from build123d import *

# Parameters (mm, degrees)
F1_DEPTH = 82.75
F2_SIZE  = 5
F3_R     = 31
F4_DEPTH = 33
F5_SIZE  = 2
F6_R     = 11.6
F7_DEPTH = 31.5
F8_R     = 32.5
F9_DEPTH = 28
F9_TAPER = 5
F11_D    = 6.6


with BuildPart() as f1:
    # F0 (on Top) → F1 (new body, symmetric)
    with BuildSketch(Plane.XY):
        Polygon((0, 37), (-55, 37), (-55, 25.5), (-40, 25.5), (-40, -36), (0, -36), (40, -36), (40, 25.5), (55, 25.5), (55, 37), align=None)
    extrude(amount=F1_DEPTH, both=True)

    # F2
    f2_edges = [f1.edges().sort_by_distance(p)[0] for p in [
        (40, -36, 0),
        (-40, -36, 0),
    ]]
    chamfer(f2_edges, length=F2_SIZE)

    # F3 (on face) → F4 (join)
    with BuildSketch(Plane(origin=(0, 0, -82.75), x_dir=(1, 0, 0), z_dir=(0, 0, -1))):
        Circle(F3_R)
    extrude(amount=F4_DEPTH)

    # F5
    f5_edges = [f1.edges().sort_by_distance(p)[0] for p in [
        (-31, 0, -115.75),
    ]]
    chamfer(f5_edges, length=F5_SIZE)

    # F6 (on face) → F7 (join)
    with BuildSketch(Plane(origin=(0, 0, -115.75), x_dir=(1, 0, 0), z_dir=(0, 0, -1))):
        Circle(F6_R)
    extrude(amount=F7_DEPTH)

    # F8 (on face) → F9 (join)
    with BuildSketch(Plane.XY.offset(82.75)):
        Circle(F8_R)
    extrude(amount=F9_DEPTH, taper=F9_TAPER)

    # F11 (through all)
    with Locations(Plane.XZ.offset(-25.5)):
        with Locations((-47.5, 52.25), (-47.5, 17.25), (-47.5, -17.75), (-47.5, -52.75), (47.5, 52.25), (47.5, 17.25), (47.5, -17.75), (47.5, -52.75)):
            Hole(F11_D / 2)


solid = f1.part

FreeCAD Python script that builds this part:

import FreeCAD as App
import Part
import Sketcher


def edges_at(feature, points):
    """Names of the edges that pass closest to the given points."""
    edges = feature.Shape.Edges
    near = lambda p: min(range(len(edges)), key=lambda i: edges[i].distToShape(Part.Vertex(*p))[0])
    return sorted({f"Edge{near(p) + 1}" for p in points})

doc = App.newDocument("Part")
params = doc.addObject("Spreadsheet::Sheet", "Params")
for row, (alias, value) in enumerate([
    ("sketch1_width", "15 mm"),
    ("sketch1_width2", "80 mm"),
    ("sketch1_height", "11.5 mm"),
    ("sketch1_height2", "61.5 mm"),
    ("pad1_length", "165.5 mm"),
    ("chamfer_size", "5 mm"),
    ("sketch2_diameter", "62 mm"),
    ("pad2_length", "33 mm"),
    ("chamfer2_size", "2 mm"),
    ("sketch3_diameter", "23.2 mm"),
    ("pad3_length", "31.5 mm"),
    ("sketch4_diameter", "65 mm"),
    ("pad4_length", "28 mm"),
    ("pad4_taper", "-5 deg"),
    ("sketch5_diameter", "6.6 mm"),
    ("hole_diameter", "6.6 mm"),
], start=1):
    params.set(f"A{row}", alias)
    params.set(f"B{row}", "=" + value)
    params.setAlias(f"B{row}", alias)

body = doc.addObject("PartDesign::Body", "Body")

# Sketch on XY plane
sketch1 = doc.addObject("Sketcher::SketchObject", "Sketch")
body.addObject(sketch1)
sketch1.AttachmentSupport = (doc.XY_Plane, [""])
sketch1.MapMode = "FlatFace"
sketch1.addGeometry([
    Part.LineSegment(App.Vector(-55, 37, 0), App.Vector(-55, 26, 0)),  # 0
    Part.LineSegment(App.Vector(-55, 26, 0), App.Vector(-40, 26, 0)),  # 1
    Part.LineSegment(App.Vector(-40, 26, 0), App.Vector(-40, -36, 0)),  # 2
    Part.LineSegment(App.Vector(-40, -36, 0), App.Vector(40, -36, 0)),  # 3
    Part.LineSegment(App.Vector(40, -36, 0), App.Vector(40, 26, 0)),  # 4
    Part.LineSegment(App.Vector(40, 26, 0), App.Vector(55, 26, 0)),  # 5
    Part.LineSegment(App.Vector(55, 26, 0), App.Vector(55, 37, 0)),  # 6
    Part.LineSegment(App.Vector(55, 37, 0), App.Vector(-55, 37, 0)),  # 7
], False)
sketch1.addConstraint([
    Sketcher.Constraint("Coincident", 0, 2, 1, 1),
    Sketcher.Constraint("Coincident", 1, 2, 2, 1),
    Sketcher.Constraint("Coincident", 2, 2, 3, 1),
    Sketcher.Constraint("Coincident", 3, 2, 4, 1),
    Sketcher.Constraint("Coincident", 4, 2, 5, 1),
    Sketcher.Constraint("Coincident", 5, 2, 6, 1),
    Sketcher.Constraint("Coincident", 6, 2, 7, 1),
    Sketcher.Constraint("Coincident", 7, 2, 0, 1),
    Sketcher.Constraint("Vertical", 0),
    Sketcher.Constraint("Horizontal", 1),
    Sketcher.Constraint("Vertical", 2),
    Sketcher.Constraint("Horizontal", 3),
    Sketcher.Constraint("Vertical", 4),
    Sketcher.Constraint("Horizontal", 5),
    Sketcher.Constraint("Vertical", 6),
    Sketcher.Constraint("Horizontal", 7),
    Sketcher.Constraint("Symmetric", 1, 2, 4, 2, -2),
    Sketcher.Constraint("Equal", 1, 5),
    Sketcher.Constraint("DistanceX", 1, 1, 1, 2, 15.0),
    Sketcher.Constraint("DistanceX", 3, 1, 3, 2, 80.0),
    Sketcher.Constraint("DistanceY", 0, 2, 0, 1, 11.5),
    Sketcher.Constraint("DistanceY", 2, 2, 2, 1, 61.5),
    Sketcher.Constraint("DistanceY", 2, 2, -1, 1, 36.0),
])
sketch1.setExpression("Constraints[18]", "Params.sketch1_width")
sketch1.setExpression("Constraints[19]", "Params.sketch1_width2")
sketch1.setExpression("Constraints[20]", "Params.sketch1_height")
sketch1.setExpression("Constraints[21]", "Params.sketch1_height2")
pad1 = doc.addObject("PartDesign::Pad", "Pad")
body.addObject(pad1)
pad1.Profile = sketch1
pad1.setExpression("Length", "Params.pad1_length")
pad1.Midplane = True
doc.recompute()

chamfer = doc.addObject("PartDesign::Chamfer", "Chamfer")
body.addObject(chamfer)
chamfer.Base = (pad1, edges_at(pad1, [(40, -36, 0), (-40, -36, 0)]))
chamfer.setExpression("Size", "Params.chamfer_size")

# Sketch on XY plane
sketch2 = doc.addObject("Sketcher::SketchObject", "Sketch001")
body.addObject(sketch2)
sketch2.AttachmentSupport = (doc.XY_Plane, [""])
sketch2.MapMode = "FlatFace"
sketch2.AttachmentOffset = App.Placement(App.Vector(0, 0, -82.75), App.Rotation())
sketch2.addGeometry(Part.Circle(App.Vector(0, 0, 0), App.Vector(0, 0, 1), 31), False)
sketch2.addConstraint([
    Sketcher.Constraint("Coincident", 0, 3, -1, 1),
    Sketcher.Constraint("Diameter", 0, 62.0),
])
sketch2.setExpression("Constraints[1]", "Params.sketch2_diameter")
pad2 = doc.addObject("PartDesign::Pad", "Pad001")
body.addObject(pad2)
pad2.Profile = sketch2
pad2.setExpression("Length", "Params.pad2_length")
pad2.Reversed = True
doc.recompute()

chamfer2 = doc.addObject("PartDesign::Chamfer", "Chamfer001")
body.addObject(chamfer2)
chamfer2.Base = (pad2, edges_at(pad2, [(-31, 0, -115.75)]))
chamfer2.setExpression("Size", "Params.chamfer2_size")

# Sketch on XY plane
sketch3 = doc.addObject("Sketcher::SketchObject", "Sketch002")
body.addObject(sketch3)
sketch3.AttachmentSupport = (doc.XY_Plane, [""])
sketch3.MapMode = "FlatFace"
sketch3.AttachmentOffset = App.Placement(App.Vector(0, 0, -115.75), App.Rotation())
sketch3.addGeometry(Part.Circle(App.Vector(0, 0, 0), App.Vector(0, 0, 1), 12), False)
sketch3.addConstraint([
    Sketcher.Constraint("Coincident", 0, 3, -1, 1),
    Sketcher.Constraint("Diameter", 0, 23.2),
])
sketch3.setExpression("Constraints[1]", "Params.sketch3_diameter")
pad3 = doc.addObject("PartDesign::Pad", "Pad002")
body.addObject(pad3)
pad3.Profile = sketch3
pad3.setExpression("Length", "Params.pad3_length")
pad3.Reversed = True

# Sketch on XY plane
sketch4 = doc.addObject("Sketcher::SketchObject", "Sketch003")
body.addObject(sketch4)
sketch4.AttachmentSupport = (doc.XY_Plane, [""])
sketch4.MapMode = "FlatFace"
sketch4.AttachmentOffset = App.Placement(App.Vector(0, 0, 82.75), App.Rotation())
sketch4.addGeometry(Part.Circle(App.Vector(0, 0, 0), App.Vector(0, 0, 1), 32), False)
sketch4.addConstraint([
    Sketcher.Constraint("Coincident", 0, 3, -1, 1),
    Sketcher.Constraint("Diameter", 0, 65.0),
])
sketch4.setExpression("Constraints[1]", "Params.sketch4_diameter")
pad4 = doc.addObject("PartDesign::Pad", "Pad003")
body.addObject(pad4)
pad4.Profile = sketch4
pad4.setExpression("Length", "Params.pad4_length")
pad4.setExpression("TaperAngle", "Params.pad4_taper")

# Sketch on XZ plane
sketch5 = doc.addObject("Sketcher::SketchObject", "Sketch004")
body.addObject(sketch5)
sketch5.AttachmentSupport = (doc.XZ_Plane, [""])
sketch5.MapMode = "FlatFace"
sketch5.AttachmentOffset = App.Placement(App.Vector(0, 0, -25.5), App.Rotation())
sketch5.addGeometry([
    Part.Circle(App.Vector(-47.5, 52.2, 0), App.Vector(0, 0, 1), 3.3),  # 0
    Part.Circle(App.Vector(-47.5, 17.2, 0), App.Vector(0, 0, 1), 3.3),  # 1
    Part.Circle(App.Vector(-47.5, -17.8, 0), App.Vector(0, 0, 1), 3.3),  # 2
    Part.Circle(App.Vector(-47.5, -52.8, 0), App.Vector(0, 0, 1), 3.3),  # 3
    Part.Circle(App.Vector(47.5, 52.2, 0), App.Vector(0, 0, 1), 3.3),  # 4
    Part.Circle(App.Vector(47.5, 17.2, 0), App.Vector(0, 0, 1), 3.3),  # 5
    Part.Circle(App.Vector(47.5, -17.8, 0), App.Vector(0, 0, 1), 3.3),  # 6
    Part.Circle(App.Vector(47.5, -52.8, 0), App.Vector(0, 0, 1), 3.3),  # 7
], False)
sketch5.addConstraint([
    Sketcher.Constraint("Equal", 0, 1),
    Sketcher.Constraint("Equal", 1, 2),
    Sketcher.Constraint("Equal", 2, 3),
    Sketcher.Constraint("Equal", 3, 4),
    Sketcher.Constraint("Equal", 4, 5),
    Sketcher.Constraint("Equal", 5, 6),
    Sketcher.Constraint("Equal", 6, 7),
    Sketcher.Constraint("Symmetric", 0, 3, 4, 3, -2),
    Sketcher.Constraint("Symmetric", 1, 3, 5, 3, -2),
    Sketcher.Constraint("Symmetric", 2, 3, 6, 3, -2),
    Sketcher.Constraint("Symmetric", 3, 3, 7, 3, -2),
    Sketcher.Constraint("Vertical", 0, 3, 1, 3),
    Sketcher.Constraint("Vertical", 1, 3, 2, 3),
    Sketcher.Constraint("Vertical", 2, 3, 3, 3),
    Sketcher.Constraint("Diameter", 0, 6.6),
    Sketcher.Constraint("DistanceY", 1, 3, 0, 3, 35.0),
    Sketcher.Constraint("DistanceY", 2, 3, 1, 3, 35.0),
    Sketcher.Constraint("DistanceY", 3, 3, 2, 3, 35.0),
    Sketcher.Constraint("DistanceX", 0, 3, 4, 3, 95.0),
    Sketcher.Constraint("DistanceY", -1, 1, 0, 3, 52.25),
])
sketch5.setExpression("Constraints[14]", "Params.sketch5_diameter")
doc.recompute()
hole = doc.addObject("PartDesign::Hole", "Hole")
body.addObject(hole)
hole.Profile = sketch5
hole.ThreadType = "None"
hole.setExpression("Diameter", "Params.hole_diameter")
hole.DepthType = "ThroughAll"

doc.recompute()
